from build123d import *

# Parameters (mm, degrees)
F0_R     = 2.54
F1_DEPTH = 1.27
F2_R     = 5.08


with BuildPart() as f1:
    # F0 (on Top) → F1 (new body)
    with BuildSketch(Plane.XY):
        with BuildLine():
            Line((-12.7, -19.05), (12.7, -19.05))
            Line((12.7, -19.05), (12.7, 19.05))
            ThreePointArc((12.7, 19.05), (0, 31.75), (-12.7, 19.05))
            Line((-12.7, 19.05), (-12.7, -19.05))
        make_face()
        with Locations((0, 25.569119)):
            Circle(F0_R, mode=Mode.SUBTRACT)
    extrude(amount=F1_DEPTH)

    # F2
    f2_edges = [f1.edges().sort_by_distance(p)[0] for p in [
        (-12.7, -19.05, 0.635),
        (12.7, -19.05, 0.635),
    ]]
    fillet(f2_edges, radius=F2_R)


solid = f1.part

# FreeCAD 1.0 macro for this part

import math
import FreeCAD as App
import Part
import Sketcher
Q = App.Units.Quantity


def edges_at(feature, points):
    """Names of the edges that pass closest to the given points."""
    edges = feature.Shape.Edges
    near = lambda p: min(range(len(edges)), key=lambda i: edges[i].distToShape(Part.Vertex(*p))[0])
    return sorted({f"Edge{near(p) + 1}" for p in points})

doc = App.newDocument("Part")
body = doc.addObject("PartDesign::Body", "Body")

sketch1 = doc.addObject("Sketcher::SketchObject", "Sketch")
body.addObject(sketch1)
sketch1.AttachmentSupport = (doc.XY_Plane, [""])
sketch1.MapMode = "FlatFace"
sketch1.addGeometry(Part.LineSegment(App.Vector(-12.7, -19.05, 0), App.Vector(12.7, -19.05, 0)), False)
sketch1.addGeometry(Part.LineSegment(App.Vector(12.7, -19.05, 0), App.Vector(12.7, 19.05, 0)), False)
sketch1.addGeometry(Part.ArcOfCircle(Part.Circle(App.Vector(0, 19.05, 0), App.Vector(0, 0, 1), 12.7), math.radians(0), math.radians(180)), False)
sketch1.addGeometry(Part.LineSegment(App.Vector(-12.7, 19.05, 0), App.Vector(-12.7, -19.05, 0)), False)
sketch1.addGeometry(Part.Circle(App.Vector(0, 25.569119, 0), App.Vector(0, 0, 1), 2.54), False)
sketch1.addConstraint(Sketcher.Constraint("Coincident", 0, 2, 1, 1))
sketch1.addConstraint(Sketcher.Constraint("Tangent", 1, 2, 2, 1))
sketch1.addConstraint(Sketcher.Constraint("Tangent", 2, 2, 3, 1))
sketch1.addConstraint(Sketcher.Constraint("Coincident", 3, 2, 0, 1))
sketch1.addConstraint(Sketcher.Constraint("Horizontal", 0))
sketch1.addConstraint(Sketcher.Constraint("Vertical", 1))
sketch1.addConstraint(Sketcher.Constraint("Vertical", 3))
sketch1.addConstraint(Sketcher.Constraint("Symmetric", 0, 2, 2, 2, -1, 1))
sketch1.addConstraint(Sketcher.Constraint("PointOnObject", 4, 3, -2))
sketch1.addConstraint(Sketcher.Constraint("Diameter", 4, Q("0.2 in")))
sketch1.addConstraint(Sketcher.Constraint("Radius", 2, Q("0.5 in")))
sketch1.addConstraint(Sketcher.Constraint("DistanceY", 1, 1, 1, 2, Q("1.5 in")))
sketch1.addConstraint(Sketcher.Constraint("DistanceY", -1, 1, 4, 3, Q("25.569119 mm")))
pad1 = doc.addObject("PartDesign::Pad", "Pad")
body.addObject(pad1)
pad1.Profile = sketch1
pad1.Length = Q("0.05 in")
doc.recompute()

fillet = doc.addObject("PartDesign::Fillet", "Fillet")
body.addObject(fillet)
fillet.Base = (pad1, edges_at(pad1, [(-12.7, -19.05, 0.635), (12.7, -19.05, 0.635)]))
fillet.Radius = Q("0.2 in")

doc.recompute()
